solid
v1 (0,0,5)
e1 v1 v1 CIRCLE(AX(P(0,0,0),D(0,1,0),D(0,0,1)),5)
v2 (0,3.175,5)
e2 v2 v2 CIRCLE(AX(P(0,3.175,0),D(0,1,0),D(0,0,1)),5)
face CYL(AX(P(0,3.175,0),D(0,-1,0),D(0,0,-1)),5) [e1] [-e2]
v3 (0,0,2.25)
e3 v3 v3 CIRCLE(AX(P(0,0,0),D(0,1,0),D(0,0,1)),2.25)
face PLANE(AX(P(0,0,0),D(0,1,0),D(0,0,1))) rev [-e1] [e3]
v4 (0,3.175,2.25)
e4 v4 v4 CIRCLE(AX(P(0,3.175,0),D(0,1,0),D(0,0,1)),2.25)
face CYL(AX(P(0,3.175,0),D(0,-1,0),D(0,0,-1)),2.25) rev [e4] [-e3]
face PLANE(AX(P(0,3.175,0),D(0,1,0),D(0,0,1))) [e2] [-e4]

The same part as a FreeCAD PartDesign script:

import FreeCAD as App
import Part
import Sketcher

V = App.Vector
Q = App.Units.Quantity

doc = App.newDocument("Part")
body = doc.addObject("PartDesign::Body", "Body")

# Sketch on XZ plane
sketch1 = body.newObject("Sketcher::SketchObject", "Sketch")
sketch1.AttachmentSupport = (doc.getObject("XZ_Plane"), [""])
sketch1.MapMode = "FlatFace"
sketch1.addGeometry(Part.Circle(V(0, 0, 0), V(0, 0, 1), 5), False)
sketch1.addGeometry(Part.Circle(V(0, 0, 0), V(0, 0, 1), 2.2), False)
sketch1.addConstraint(Sketcher.Constraint("Coincident", 0, 3, -1, 1))
sketch1.addConstraint(Sketcher.Constraint("Coincident", 1, 3, -1, 1))
sketch1.addConstraint(Sketcher.Constraint("Diameter", 0, Q("10 mm")))
sketch1.addConstraint(Sketcher.Constraint("Diameter", 1, Q("4.5 mm")))
pad1 = body.newObject("PartDesign::Pad", "Pad")
pad1.Profile = sketch1
pad1.Length = 3.175
pad1.Reversed = True

doc.recompute()
